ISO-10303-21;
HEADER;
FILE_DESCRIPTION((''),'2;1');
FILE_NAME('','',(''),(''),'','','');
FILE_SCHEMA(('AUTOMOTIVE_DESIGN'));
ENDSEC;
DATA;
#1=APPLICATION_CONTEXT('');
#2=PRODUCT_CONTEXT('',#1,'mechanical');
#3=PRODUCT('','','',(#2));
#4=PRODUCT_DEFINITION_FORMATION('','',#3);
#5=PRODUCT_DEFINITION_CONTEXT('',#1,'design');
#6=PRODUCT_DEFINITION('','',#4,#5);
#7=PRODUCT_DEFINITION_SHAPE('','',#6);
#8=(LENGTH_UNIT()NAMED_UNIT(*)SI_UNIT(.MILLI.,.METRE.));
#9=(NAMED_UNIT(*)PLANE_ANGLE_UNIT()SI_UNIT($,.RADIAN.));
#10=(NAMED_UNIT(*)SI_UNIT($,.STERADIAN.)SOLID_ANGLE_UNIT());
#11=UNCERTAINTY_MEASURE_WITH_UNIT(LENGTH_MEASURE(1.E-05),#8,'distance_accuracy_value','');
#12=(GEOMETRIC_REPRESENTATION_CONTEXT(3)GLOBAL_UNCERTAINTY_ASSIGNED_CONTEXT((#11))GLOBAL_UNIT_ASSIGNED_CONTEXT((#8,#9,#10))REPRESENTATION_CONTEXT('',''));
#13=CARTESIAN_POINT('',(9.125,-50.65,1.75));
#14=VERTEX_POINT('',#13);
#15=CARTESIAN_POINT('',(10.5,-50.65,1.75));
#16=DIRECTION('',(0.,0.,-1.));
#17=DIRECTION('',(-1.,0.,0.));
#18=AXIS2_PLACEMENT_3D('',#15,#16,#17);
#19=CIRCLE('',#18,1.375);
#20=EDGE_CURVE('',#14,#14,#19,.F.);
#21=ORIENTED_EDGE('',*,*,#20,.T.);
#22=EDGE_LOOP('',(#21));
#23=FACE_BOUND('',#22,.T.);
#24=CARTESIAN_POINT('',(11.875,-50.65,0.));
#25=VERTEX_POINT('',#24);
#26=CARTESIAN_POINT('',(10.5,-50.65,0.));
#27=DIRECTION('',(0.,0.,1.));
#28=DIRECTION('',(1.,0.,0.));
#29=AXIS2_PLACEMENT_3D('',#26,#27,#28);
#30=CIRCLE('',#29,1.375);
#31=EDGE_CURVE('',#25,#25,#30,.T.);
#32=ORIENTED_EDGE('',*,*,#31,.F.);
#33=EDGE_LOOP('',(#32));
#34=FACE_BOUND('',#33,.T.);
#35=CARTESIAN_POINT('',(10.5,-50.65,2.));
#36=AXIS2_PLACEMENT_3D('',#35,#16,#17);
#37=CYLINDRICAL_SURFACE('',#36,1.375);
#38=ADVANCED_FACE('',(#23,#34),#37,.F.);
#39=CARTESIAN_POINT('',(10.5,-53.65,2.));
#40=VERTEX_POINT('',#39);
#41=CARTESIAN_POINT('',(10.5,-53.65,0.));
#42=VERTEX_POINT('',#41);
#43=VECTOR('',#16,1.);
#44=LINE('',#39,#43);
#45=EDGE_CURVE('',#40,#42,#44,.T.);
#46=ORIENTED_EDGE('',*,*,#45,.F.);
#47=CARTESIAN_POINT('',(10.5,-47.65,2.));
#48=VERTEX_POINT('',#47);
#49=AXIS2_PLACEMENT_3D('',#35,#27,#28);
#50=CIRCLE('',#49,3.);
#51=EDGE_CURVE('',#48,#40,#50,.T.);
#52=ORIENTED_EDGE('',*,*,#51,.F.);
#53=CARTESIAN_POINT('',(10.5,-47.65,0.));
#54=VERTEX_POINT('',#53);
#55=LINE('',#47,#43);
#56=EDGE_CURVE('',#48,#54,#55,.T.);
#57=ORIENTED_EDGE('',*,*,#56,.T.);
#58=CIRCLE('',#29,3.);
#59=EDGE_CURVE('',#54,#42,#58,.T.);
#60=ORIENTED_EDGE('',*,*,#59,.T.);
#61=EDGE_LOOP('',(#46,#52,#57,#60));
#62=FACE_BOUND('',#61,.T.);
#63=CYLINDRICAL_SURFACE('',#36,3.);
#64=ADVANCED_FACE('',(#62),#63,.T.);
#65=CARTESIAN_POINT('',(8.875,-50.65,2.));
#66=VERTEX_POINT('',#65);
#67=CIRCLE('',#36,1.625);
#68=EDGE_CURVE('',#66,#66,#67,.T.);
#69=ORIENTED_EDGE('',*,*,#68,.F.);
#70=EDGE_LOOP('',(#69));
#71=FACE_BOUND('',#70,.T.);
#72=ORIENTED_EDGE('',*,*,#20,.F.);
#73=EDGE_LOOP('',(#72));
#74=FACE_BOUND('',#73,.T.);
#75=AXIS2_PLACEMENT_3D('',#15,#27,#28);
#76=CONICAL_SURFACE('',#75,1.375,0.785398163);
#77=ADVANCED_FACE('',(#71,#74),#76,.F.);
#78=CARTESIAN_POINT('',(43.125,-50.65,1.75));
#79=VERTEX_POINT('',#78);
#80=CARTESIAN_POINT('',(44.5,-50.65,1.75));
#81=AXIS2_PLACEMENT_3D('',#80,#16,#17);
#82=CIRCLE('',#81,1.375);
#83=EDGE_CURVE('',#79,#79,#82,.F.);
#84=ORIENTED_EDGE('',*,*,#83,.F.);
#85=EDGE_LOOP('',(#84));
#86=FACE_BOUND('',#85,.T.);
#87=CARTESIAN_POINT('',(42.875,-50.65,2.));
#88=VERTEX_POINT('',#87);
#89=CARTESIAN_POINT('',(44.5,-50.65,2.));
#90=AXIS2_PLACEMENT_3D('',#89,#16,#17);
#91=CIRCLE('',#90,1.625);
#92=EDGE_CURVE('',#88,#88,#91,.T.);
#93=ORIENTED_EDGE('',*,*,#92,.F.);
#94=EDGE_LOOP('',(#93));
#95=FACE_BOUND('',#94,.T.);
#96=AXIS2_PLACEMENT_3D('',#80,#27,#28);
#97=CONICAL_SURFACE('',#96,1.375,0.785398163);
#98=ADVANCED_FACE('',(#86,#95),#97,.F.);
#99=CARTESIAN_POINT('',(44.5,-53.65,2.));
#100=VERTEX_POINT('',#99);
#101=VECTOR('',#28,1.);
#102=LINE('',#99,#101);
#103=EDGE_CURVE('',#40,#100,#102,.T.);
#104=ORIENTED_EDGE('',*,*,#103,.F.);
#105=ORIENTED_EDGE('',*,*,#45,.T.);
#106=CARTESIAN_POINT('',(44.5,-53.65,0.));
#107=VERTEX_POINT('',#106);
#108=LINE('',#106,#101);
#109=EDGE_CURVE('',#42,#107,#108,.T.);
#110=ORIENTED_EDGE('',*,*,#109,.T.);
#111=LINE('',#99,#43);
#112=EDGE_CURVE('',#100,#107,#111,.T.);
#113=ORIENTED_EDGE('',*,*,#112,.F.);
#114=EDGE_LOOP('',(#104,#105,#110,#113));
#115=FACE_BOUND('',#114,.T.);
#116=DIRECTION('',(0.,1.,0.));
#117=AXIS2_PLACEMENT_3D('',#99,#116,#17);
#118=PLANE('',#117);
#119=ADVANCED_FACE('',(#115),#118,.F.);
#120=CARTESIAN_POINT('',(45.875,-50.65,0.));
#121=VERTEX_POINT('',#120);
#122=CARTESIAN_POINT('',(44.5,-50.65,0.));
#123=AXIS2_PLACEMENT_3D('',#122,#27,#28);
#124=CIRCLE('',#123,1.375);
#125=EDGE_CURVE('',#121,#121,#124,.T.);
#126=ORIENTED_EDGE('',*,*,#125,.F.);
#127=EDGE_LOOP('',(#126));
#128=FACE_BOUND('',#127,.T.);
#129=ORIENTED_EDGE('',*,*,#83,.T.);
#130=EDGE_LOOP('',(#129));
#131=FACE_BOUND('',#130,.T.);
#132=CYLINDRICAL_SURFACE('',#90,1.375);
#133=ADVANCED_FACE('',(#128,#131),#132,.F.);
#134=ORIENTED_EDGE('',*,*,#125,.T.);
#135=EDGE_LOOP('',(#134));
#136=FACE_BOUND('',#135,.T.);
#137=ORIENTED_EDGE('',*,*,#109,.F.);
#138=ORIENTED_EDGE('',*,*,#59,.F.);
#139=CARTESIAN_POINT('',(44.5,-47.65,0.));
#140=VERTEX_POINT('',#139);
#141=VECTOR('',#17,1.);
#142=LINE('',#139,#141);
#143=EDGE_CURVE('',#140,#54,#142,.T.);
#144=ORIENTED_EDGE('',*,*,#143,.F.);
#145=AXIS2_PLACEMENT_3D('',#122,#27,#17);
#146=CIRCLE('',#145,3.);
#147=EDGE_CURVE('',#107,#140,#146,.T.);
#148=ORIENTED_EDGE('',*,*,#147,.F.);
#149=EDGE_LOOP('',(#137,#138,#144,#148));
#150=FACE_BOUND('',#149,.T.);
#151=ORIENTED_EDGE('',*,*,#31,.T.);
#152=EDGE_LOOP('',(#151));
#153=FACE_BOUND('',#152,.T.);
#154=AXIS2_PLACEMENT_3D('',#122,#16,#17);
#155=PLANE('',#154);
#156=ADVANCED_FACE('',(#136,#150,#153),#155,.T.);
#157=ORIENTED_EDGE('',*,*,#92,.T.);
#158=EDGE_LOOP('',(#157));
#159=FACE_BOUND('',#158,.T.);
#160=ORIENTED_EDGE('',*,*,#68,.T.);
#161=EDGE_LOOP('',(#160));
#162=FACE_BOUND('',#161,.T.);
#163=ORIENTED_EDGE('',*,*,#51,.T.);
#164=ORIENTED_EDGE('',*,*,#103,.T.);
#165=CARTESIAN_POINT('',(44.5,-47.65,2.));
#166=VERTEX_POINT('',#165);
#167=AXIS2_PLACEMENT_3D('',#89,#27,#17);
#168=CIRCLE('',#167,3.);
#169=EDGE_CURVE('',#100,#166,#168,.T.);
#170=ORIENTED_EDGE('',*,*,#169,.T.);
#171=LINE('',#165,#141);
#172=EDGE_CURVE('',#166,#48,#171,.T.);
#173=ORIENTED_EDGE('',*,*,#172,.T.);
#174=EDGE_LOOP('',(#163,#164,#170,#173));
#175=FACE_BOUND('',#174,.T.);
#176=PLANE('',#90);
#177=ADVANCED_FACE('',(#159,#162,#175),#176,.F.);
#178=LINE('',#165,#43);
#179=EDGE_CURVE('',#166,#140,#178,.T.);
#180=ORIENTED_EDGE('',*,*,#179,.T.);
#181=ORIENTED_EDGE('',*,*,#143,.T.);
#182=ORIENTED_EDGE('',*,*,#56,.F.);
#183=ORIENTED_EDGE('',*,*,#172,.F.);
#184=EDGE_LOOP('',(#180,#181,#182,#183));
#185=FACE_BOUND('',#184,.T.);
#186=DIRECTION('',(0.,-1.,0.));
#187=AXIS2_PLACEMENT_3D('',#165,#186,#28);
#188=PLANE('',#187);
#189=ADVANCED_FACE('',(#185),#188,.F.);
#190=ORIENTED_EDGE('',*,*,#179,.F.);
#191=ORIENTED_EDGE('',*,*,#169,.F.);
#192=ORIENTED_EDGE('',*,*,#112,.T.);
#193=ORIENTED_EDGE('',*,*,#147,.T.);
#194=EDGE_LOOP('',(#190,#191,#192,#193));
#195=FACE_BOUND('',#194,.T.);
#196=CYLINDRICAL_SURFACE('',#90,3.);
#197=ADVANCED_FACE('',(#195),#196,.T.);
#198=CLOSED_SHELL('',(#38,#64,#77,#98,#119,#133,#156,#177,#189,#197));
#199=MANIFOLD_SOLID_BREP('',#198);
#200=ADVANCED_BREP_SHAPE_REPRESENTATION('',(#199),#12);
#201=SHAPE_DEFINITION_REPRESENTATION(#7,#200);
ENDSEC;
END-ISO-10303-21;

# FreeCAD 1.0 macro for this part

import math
import FreeCAD as App
import Part
import Sketcher
Q = App.Units.Quantity


def edges_at(feature, points):
    """Names of the edges that pass closest to the given points."""
    edges = feature.Shape.Edges
    near = lambda p: min(range(len(edges)), key=lambda i: edges[i].distToShape(Part.Vertex(*p))[0])
    return sorted({f"Edge{near(p) + 1}" for p in points})

doc = App.newDocument("Part")
body = doc.addObject("PartDesign::Body", "Body")

sketch1 = body.newObject("Sketcher::SketchObject", "Sketch")
sketch1.AttachmentSupport = (doc.getObject("XY_Plane"), [""])
sketch1.MapMode = "FlatFace"
sketch1.addGeometry([
    Part.LineSegment(App.Vector(44.5, -47.6, 0), App.Vector(10.5, -47.6, 0)),
    Part.ArcOfCircle(Part.Circle(App.Vector(10.5, -50.6, 0), App.Vector(0, 0, 1), 3), math.radians(90), math.radians(270)),
    Part.LineSegment(App.Vector(10.5, -53.6, 0), App.Vector(44.5, -53.6, 0)),
    Part.ArcOfCircle(Part.Circle(App.Vector(44.5, -50.6, 0), App.Vector(0, 0, 1), 3), math.radians(-90), math.radians(90)),
    Part.Circle(App.Vector(10.5, -50.6, 0), App.Vector(0, 0, 1), 1.4),
    Part.Circle(App.Vector(44.5, -50.6, 0), App.Vector(0, 0, 1), 1.4),
], False)
sketch1.addConstraint([
    Sketcher.Constraint("Tangent", 0, 2, 1, 1),
    Sketcher.Constraint("Tangent", 1, 2, 2, 1),
    Sketcher.Constraint("Tangent", 2, 2, 3, 1),
    Sketcher.Constraint("Tangent", 3, 2, 0, 1),
    Sketcher.Constraint("Horizontal", 0),
    Sketcher.Constraint("Horizontal", 2),
    Sketcher.Constraint("Coincident", 4, 3, 1, 3),
    Sketcher.Constraint("Coincident", 5, 3, 3, 3),
    Sketcher.Constraint("Equal", 4, 5),
    Sketcher.Constraint("Radius", 1, Q("3 mm")),
    Sketcher.Constraint("Diameter", 4, Q("2.75 mm")),
    Sketcher.Constraint("DistanceX", 0, 2, 0, 1, Q("34 mm")),
    Sketcher.Constraint("DistanceX", -1, 1, 1, 3, Q("10.5 mm")),
    Sketcher.Constraint("DistanceY", 1, 3, -1, 1, Q("50.65 mm")),
])
pad1 = body.newObject("PartDesign::Pad", "Pad")
pad1.Profile = sketch1
pad1.Length = 2
doc.recompute()

chamfer = body.newObject("PartDesign::Chamfer", "Chamfer")
chamfer.Base = (pad1, edges_at(pad1, [(9.125, -50.65, 2), (43.125, -50.65, 2)]))
chamfer.Size = 0.25

doc.recompute()
